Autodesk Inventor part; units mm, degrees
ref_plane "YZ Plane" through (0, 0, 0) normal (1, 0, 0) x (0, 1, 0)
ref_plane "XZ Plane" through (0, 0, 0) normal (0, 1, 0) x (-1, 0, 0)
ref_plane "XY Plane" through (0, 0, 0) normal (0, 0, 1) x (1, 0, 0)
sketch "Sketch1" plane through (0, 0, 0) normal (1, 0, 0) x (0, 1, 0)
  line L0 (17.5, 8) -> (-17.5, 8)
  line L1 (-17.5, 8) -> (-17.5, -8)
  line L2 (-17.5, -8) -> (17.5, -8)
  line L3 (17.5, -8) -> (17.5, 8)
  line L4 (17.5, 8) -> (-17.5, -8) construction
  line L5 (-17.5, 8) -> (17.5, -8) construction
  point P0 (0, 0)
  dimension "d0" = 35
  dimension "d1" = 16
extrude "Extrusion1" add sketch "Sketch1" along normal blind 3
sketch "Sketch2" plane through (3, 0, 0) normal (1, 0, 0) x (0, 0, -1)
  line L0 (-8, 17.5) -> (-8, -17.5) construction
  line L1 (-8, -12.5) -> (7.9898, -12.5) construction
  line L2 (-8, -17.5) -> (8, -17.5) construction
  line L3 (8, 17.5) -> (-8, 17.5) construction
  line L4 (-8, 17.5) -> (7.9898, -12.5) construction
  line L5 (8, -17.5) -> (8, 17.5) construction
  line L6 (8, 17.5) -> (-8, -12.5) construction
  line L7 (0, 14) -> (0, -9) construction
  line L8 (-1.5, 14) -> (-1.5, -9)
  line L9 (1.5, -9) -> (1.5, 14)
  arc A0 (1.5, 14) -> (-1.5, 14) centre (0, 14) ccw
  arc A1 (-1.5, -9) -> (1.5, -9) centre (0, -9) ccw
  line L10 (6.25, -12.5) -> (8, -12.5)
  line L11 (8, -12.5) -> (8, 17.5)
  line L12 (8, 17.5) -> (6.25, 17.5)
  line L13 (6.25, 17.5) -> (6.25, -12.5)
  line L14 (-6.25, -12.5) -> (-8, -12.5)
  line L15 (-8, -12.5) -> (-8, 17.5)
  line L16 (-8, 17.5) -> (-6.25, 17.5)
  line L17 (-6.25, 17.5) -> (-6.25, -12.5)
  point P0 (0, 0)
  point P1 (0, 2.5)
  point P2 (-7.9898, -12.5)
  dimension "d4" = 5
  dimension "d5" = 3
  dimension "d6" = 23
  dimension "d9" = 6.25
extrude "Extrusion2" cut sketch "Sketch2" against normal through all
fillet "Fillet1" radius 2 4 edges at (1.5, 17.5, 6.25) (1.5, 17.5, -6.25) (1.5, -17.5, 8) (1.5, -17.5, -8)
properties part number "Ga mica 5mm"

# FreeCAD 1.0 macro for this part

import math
import FreeCAD as App
import Part
import Sketcher
from FreeCAD import Vector


def edges_at(feature, points):
    """Names of the edges that pass closest to the given points."""
    edges = feature.Shape.Edges
    near = lambda p: min(range(len(edges)), key=lambda i: edges[i].distToShape(Part.Vertex(*p))[0])
    return sorted({f"Edge{near(p) + 1}" for p in points})


def add_polygon(sketch, points):
    """Adds a closed chain of lines whose ends are joined by coincident constraints."""
    first, n = sketch.GeometryCount, len(points)
    for a, b in zip(points, points[1:] + points[:1]):
        sketch.addGeometry(Part.LineSegment(App.Vector(*a, 0), App.Vector(*b, 0)), False)
    for i in range(n):
        sketch.addConstraint(Sketcher.Constraint("Coincident", first + i, 2, first + (i + 1) % n, 1))

doc = App.newDocument("Part")
body = doc.addObject("PartDesign::Body", "Body")

sketch1 = body.newObject("Sketcher::SketchObject", "Sketch")
sketch1.AttachmentSupport = (doc.getObject("YZ_Plane"), [""])
sketch1.MapMode = "FlatFace"
add_polygon(sketch1, [(18, -8), (18, 8), (-18, 8), (-18, -8)])
sketch1.addConstraint([
    Sketcher.Constraint("Vertical", 0),
    Sketcher.Constraint("Horizontal", 1),
    Sketcher.Constraint("Vertical", 2),
    Sketcher.Constraint("Horizontal", 3),
    Sketcher.Constraint("Symmetric", 0, 2, 2, 2, -1, 1),
    Sketcher.Constraint("DistanceX", 1, 2, 1, 1, 35.0),
    Sketcher.Constraint("DistanceY", 0, 1, 0, 2, 16.0),
])
pad1 = body.newObject("PartDesign::Pad", "Pad")
pad1.Profile = sketch1
pad1.Length = 3

sketch2 = body.newObject("Sketcher::SketchObject", "Sketch001")
sketch2.AttachmentSupport = (doc.getObject("YZ_Plane"), [""])
sketch2.MapMode = "FlatFace"
sketch2.AttachmentOffset = App.Placement(Vector(0, 0, 3), App.Rotation())
sketch2.addGeometry(Part.ArcOfCircle(Part.Circle(Vector(14, 0, 0), Vector(0, 0, 1), 1.5), math.radians(-90), math.radians(90)), False)
sketch2.addGeometry(Part.LineSegment(Vector(14, 1.5, 0), Vector(-9, 1.5, 0)), False)
sketch2.addGeometry(Part.ArcOfCircle(Part.Circle(Vector(-9, 0, 0), Vector(0, 0, 1), 1.5), math.radians(90), math.radians(270)), False)
sketch2.addGeometry(Part.LineSegment(Vector(-9, -1.5, 0), Vector(14, -1.5, 0)), False)
add_polygon(sketch2, [(17.5, -6.2), (-12.5, -6.2), (-12.5, -8), (17.5, -8)])
add_polygon(sketch2, [(-12.5, 8), (-12.5, 6.2), (17.5, 6.2), (17.5, 8)])
sketch2.addConstraint([
    Sketcher.Constraint("Tangent", 0, 2, 1, 1),
    Sketcher.Constraint("Tangent", 1, 2, 2, 1),
    Sketcher.Constraint("Tangent", 2, 2, 3, 1),
    Sketcher.Constraint("Tangent", 3, 2, 0, 1),
    Sketcher.Constraint("Horizontal", 1),
    Sketcher.Constraint("Horizontal", 3),
    Sketcher.Constraint("Horizontal", 4),
    Sketcher.Constraint("Vertical", 5),
    Sketcher.Constraint("Horizontal", 6),
    Sketcher.Constraint("Vertical", 7),
    Sketcher.Constraint("Vertical", 8),
    Sketcher.Constraint("Horizontal", 9),
    Sketcher.Constraint("Vertical", 10),
    Sketcher.Constraint("Horizontal", 11),
    Sketcher.Constraint("Symmetric", 4, 2, 8, 2, -1),
    Sketcher.Constraint("Symmetric", 6, 2, 10, 2, -1),
    Sketcher.Constraint("PointOnObject", 0, 3, -1),
    Sketcher.Constraint("Radius", 0, 1.5),
    Sketcher.Constraint("DistanceX", 1, 2, 1, 1, 23.0),
    Sketcher.Constraint("DistanceX", 4, 2, 4, 1, 30.0),
    Sketcher.Constraint("DistanceY", 4, 2, -1, 1, 6.25),
    Sketcher.Constraint("DistanceX", -1, 1, 0, 3, 14.0),
    Sketcher.Constraint("DistanceY", 5, 2, -1, 1, 8.0),
    Sketcher.Constraint("DistanceX", 4, 2, -1, 1, 12.5),
])
pocket1 = body.newObject("PartDesign::Pocket", "Pocket")
pocket1.Profile = sketch2
pocket1.Type = "ThroughAll"
doc.recompute()

fillet = body.newObject("PartDesign::Fillet", "Fillet")
fillet.Base = (pocket1, edges_at(pocket1, [
    (1.5, 17.5, 6.25),
    (1.5, 17.5, -6.25),
    (1.5, -17.5, 8),
    (1.5, -17.5, -8),
]))
fillet.Radius = 2

doc.recompute()
